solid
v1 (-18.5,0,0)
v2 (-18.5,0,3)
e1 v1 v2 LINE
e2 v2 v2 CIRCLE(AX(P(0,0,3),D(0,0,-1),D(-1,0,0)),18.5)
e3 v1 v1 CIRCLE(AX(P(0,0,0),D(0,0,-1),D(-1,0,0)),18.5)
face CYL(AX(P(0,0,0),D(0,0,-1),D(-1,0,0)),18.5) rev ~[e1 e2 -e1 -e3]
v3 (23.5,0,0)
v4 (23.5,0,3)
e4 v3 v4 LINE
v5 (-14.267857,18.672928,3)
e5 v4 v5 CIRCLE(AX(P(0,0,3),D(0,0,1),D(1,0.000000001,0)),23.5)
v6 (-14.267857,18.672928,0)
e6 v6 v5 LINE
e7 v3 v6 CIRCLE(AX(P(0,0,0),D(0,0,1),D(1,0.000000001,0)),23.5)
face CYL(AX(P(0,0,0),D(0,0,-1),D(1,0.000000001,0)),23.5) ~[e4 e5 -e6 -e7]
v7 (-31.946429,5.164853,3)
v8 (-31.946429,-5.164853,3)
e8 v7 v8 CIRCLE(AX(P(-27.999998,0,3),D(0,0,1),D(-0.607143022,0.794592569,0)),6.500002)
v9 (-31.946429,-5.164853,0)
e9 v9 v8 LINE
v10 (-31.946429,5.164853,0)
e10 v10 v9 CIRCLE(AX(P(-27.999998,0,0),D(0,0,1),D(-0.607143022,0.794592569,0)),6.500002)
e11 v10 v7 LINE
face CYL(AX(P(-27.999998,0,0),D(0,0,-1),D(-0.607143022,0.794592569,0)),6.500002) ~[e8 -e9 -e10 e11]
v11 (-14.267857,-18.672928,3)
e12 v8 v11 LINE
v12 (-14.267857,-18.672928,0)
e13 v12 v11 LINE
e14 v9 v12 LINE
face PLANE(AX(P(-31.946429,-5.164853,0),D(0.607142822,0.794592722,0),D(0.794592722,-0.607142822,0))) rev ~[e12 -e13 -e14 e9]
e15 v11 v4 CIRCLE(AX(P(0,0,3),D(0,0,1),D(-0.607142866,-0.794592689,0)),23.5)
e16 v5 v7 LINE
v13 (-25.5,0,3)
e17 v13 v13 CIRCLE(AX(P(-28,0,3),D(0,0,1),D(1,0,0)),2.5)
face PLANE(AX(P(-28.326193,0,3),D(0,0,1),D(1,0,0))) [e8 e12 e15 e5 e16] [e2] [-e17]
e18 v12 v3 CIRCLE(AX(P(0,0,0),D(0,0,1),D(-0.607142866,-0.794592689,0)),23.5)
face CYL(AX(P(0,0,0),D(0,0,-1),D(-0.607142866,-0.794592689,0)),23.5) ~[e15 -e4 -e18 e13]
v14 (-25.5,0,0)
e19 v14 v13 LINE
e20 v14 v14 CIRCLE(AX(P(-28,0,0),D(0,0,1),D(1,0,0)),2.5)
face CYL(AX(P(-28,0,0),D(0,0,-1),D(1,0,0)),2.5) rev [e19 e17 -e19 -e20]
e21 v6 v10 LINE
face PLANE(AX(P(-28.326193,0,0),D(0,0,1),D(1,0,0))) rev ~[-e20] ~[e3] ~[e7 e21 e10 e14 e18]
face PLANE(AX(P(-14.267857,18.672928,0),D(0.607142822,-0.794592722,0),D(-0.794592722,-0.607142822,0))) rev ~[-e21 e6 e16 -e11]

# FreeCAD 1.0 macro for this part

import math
import FreeCAD as App
import Part
import Sketcher

doc = App.newDocument("Part")
body = doc.addObject("PartDesign::Body", "Body")

# Sketch on XY plane
sketch1 = body.newObject("Sketcher::SketchObject", "Sketch")
sketch1.AttachmentSupport = (doc.getObject("XY_Plane"), [""])
sketch1.MapMode = "FlatFace"
sketch1.addGeometry([
    Part.LineSegment(App.Vector(-14.3, 18.7, 0), App.Vector(-31.9, 5.2, 0)),  # 0
    Part.ArcOfCircle(Part.Circle(App.Vector(-28, 0, 0), App.Vector(0, 0, 1), 6.5), math.radians(127), math.radians(233)),  # 1
    Part.LineSegment(App.Vector(-31.9, -5.2, 0), App.Vector(-14.3, -18.7, 0)),  # 2
    Part.ArcOfCircle(Part.Circle(App.Vector(0, 0, 0), App.Vector(0, 0, 1), 23.5), math.radians(-127), math.radians(0)),  # 3
    Part.ArcOfCircle(Part.Circle(App.Vector(0, 0, 0), App.Vector(0, 0, 1), 23.5), math.radians(0), math.radians(127)),  # 4
    Part.Circle(App.Vector(-28, 0, 0), App.Vector(0, 0, 1), 2.5),  # 5
    Part.Circle(App.Vector(0, 0, 0), App.Vector(0, 0, 1), 18.5),  # 6
], False)
sketch1.addConstraint([
    Sketcher.Constraint("Tangent", 0, 2, 1, 1),
    Sketcher.Constraint("Tangent", 1, 2, 2, 1),
    Sketcher.Constraint("Tangent", 2, 2, 3, 1),
    Sketcher.Constraint("Tangent", 3, 2, 4, 1),
    Sketcher.Constraint("Tangent", 4, 2, 0, 1),
    Sketcher.Constraint("Coincident", 3, 3, -1, 1),
    Sketcher.Constraint("Coincident", 6, 3, -1, 1),
    Sketcher.Constraint("Coincident", 5, 3, 1, 3),
    Sketcher.Constraint("Equal", 3, 4),
    Sketcher.Constraint("PointOnObject", 1, 3, -1),
    Sketcher.Constraint("PointOnObject", 3, 2, -1),
    Sketcher.Constraint("Diameter", 5, 5.0),
    Sketcher.Constraint("Diameter", 6, 37.0),
    Sketcher.Constraint("Radius", 1, 6.500002),
    Sketcher.Constraint("Radius", 3, 23.5),
    Sketcher.Constraint("DistanceX", 1, 3, -1, 1, 27.999998),
])
pad1 = body.newObject("PartDesign::Pad", "Pad")
pad1.Profile = sketch1
pad1.Length = 3

doc.recompute()
